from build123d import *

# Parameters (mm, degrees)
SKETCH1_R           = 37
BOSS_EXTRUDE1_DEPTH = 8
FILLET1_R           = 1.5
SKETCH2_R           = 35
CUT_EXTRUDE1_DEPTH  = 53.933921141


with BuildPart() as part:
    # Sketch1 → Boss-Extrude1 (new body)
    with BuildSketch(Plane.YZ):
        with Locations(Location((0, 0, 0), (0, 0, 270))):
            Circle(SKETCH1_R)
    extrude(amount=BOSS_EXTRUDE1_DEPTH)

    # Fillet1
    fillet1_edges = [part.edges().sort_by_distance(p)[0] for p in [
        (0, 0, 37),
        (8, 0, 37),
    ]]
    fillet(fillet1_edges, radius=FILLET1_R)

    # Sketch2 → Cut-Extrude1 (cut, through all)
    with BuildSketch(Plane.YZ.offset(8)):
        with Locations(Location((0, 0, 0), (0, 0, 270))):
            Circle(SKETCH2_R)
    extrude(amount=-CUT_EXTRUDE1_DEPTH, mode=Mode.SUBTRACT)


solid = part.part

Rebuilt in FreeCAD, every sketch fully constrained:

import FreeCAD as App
import Part
import Sketcher
from FreeCAD import Vector


def edges_at(feature, points):
    """Names of the edges that pass closest to the given points."""
    edges = feature.Shape.Edges
    near = lambda p: min(range(len(edges)), key=lambda i: edges[i].distToShape(Part.Vertex(*p))[0])
    return sorted({f"Edge{near(p) + 1}" for p in points})

doc = App.newDocument("Part")
body = doc.addObject("PartDesign::Body", "Body")

sketch1 = body.newObject("Sketcher::SketchObject", "Sketch")
sketch1.AttachmentSupport = (doc.getObject("YZ_Plane"), [""])
sketch1.MapMode = "FlatFace"
sketch1.addGeometry(Part.Circle(Vector(0, 0, 0), Vector(0, 0, 1), 37), False)
sketch1.addConstraint([
    Sketcher.Constraint("Coincident", 0, 3, -1, 1),
    Sketcher.Constraint("Diameter", 0, 74.0),
])
pad1 = body.newObject("PartDesign::Pad", "Pad")
pad1.Profile = sketch1
pad1.Length = 8
doc.recompute()

fillet = body.newObject("PartDesign::Fillet", "Fillet")
fillet.Base = (pad1, edges_at(pad1, [(0, 0, 37), (8, 0, 37)]))
fillet.Radius = 1.5

sketch2 = body.newObject("Sketcher::SketchObject", "Sketch001")
sketch2.AttachmentSupport = (doc.getObject("YZ_Plane"), [""])
sketch2.MapMode = "FlatFace"
sketch2.AttachmentOffset = App.Placement(Vector(0, 0, 8), App.Rotation())
sketch2.addGeometry(Part.Circle(Vector(0, 0, 0), Vector(0, 0, 1), 35), False)
sketch2.addConstraint([
    Sketcher.Constraint("Coincident", 0, 3, -1, 1),
    Sketcher.Constraint("Diameter", 0, 70.0),
])
pocket1 = body.newObject("PartDesign::Pocket", "Pocket")
pocket1.Profile = sketch2
pocket1.Type = "ThroughAll"

doc.recompute()
